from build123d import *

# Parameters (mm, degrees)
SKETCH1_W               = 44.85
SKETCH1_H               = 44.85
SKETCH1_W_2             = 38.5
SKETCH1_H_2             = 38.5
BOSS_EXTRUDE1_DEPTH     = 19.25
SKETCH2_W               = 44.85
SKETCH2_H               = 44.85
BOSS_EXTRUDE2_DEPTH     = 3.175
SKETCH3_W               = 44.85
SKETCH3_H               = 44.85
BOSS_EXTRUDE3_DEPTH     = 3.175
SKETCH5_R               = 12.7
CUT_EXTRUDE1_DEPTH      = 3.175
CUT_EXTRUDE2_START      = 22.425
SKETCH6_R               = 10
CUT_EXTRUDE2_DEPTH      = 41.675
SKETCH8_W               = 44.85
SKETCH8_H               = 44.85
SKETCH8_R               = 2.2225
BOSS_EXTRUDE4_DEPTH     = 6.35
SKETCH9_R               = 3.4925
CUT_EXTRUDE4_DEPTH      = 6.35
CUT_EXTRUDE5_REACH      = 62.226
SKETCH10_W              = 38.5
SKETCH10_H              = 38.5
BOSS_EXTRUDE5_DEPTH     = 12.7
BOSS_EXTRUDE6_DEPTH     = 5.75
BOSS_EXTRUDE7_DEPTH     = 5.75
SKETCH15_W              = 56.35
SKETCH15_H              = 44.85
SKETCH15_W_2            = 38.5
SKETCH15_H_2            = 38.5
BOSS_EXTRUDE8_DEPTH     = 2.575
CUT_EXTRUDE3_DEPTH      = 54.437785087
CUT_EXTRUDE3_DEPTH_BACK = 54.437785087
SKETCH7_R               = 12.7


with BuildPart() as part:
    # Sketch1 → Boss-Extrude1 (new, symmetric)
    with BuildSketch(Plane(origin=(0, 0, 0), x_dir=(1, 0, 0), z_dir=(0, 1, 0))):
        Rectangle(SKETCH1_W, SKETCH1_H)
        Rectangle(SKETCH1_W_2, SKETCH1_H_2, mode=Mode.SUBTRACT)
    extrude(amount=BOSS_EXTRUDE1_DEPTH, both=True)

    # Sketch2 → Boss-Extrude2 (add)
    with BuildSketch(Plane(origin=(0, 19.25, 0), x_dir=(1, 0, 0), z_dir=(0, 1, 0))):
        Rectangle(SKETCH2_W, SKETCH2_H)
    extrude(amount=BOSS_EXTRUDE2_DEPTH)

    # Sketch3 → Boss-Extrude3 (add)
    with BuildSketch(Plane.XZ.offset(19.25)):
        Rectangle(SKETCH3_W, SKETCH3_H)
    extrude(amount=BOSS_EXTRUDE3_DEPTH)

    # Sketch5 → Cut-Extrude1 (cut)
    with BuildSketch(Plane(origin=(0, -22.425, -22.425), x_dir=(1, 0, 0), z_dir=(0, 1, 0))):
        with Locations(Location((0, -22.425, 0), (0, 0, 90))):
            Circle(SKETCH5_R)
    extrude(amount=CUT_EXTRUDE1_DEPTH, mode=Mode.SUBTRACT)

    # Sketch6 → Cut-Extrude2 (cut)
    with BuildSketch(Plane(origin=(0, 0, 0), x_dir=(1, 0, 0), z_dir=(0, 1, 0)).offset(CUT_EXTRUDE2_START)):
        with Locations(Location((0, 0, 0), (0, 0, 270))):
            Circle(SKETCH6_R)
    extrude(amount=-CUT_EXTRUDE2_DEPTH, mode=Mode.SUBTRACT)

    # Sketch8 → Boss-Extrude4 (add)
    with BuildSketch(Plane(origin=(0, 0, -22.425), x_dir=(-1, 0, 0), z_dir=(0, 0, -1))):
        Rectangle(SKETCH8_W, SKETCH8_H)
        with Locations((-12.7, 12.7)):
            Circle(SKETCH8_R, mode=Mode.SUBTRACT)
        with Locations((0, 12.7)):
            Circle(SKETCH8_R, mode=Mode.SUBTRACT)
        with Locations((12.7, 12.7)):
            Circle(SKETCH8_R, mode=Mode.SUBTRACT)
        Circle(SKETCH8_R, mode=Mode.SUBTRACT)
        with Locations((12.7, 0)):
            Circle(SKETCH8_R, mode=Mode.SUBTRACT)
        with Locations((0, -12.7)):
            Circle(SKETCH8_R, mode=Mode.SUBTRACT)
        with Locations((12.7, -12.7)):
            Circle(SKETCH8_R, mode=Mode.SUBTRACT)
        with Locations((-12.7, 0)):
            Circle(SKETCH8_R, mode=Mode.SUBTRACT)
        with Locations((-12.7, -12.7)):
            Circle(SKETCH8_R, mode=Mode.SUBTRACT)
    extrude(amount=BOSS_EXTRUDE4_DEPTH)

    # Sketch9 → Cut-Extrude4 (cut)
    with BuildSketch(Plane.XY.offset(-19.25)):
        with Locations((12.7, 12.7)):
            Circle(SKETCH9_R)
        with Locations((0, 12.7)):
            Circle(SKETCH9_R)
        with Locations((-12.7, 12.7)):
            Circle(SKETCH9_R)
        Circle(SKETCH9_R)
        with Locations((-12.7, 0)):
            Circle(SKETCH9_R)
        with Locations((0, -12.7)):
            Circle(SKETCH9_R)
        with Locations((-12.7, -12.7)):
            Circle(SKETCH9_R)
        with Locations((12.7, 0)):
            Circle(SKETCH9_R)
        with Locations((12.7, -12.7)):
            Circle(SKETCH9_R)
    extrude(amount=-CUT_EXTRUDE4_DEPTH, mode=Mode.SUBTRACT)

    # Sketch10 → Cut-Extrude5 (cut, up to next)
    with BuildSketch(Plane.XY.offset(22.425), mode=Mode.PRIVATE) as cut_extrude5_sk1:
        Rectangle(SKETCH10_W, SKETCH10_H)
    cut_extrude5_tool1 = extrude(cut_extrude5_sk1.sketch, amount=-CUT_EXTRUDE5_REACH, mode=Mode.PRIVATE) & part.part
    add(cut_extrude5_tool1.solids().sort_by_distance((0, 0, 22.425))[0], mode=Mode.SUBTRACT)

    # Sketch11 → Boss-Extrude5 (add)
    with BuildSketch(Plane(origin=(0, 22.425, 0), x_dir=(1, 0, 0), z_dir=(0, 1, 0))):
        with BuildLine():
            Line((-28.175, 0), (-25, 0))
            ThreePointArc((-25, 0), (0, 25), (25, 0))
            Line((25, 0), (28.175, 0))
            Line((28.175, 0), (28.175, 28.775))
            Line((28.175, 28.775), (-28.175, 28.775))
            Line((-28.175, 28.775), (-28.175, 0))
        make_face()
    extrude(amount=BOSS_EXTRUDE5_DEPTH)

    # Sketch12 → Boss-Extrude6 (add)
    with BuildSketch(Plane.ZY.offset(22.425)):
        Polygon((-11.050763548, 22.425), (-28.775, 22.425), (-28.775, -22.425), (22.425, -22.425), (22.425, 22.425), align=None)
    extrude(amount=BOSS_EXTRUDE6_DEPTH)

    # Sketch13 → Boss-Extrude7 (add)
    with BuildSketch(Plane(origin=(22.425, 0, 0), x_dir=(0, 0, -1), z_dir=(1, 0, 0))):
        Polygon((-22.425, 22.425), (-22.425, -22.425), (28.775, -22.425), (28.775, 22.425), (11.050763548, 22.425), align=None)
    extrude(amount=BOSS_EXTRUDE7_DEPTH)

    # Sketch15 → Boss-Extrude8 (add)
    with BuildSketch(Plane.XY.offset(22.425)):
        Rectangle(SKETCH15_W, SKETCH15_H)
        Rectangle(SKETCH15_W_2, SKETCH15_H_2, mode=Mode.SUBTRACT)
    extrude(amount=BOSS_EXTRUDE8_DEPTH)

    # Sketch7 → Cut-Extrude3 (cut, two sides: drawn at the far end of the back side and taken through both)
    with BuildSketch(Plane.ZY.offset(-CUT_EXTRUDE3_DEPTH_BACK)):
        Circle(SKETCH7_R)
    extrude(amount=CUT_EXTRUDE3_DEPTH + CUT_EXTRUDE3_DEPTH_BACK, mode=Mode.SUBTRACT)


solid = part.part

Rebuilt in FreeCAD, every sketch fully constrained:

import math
import FreeCAD as App
import Part
import Sketcher

V = App.Vector
Q = App.Units.Quantity

doc = App.newDocument("Part")
body = doc.addObject("PartDesign::Body", "Body")

sketch1 = doc.addObject("Sketcher::SketchObject", "Sketch")
body.addObject(sketch1)
sketch1.AttachmentSupport = (doc.XZ_Plane, [""])
sketch1.MapMode = "FlatFace"
sketch1.addGeometry([
    Part.LineSegment(V(-22, -22, 0), V(-22, 22, 0)),
    Part.LineSegment(V(-22, 22, 0), V(22, 22, 0)),
    Part.LineSegment(V(22, 22, 0), V(22, -22, 0)),
    Part.LineSegment(V(22, -22, 0), V(-22, -22, 0)),
    Part.LineSegment(V(19, 19, 0), V(-19, 19, 0)),
    Part.LineSegment(V(-19, 19, 0), V(-19, -19, 0)),
    Part.LineSegment(V(-19, -19, 0), V(19, -19, 0)),
    Part.LineSegment(V(19, -19, 0), V(19, 19, 0)),
], False)
sketch1.addConstraint([
    Sketcher.Constraint("Coincident", 0, 2, 1, 1),
    Sketcher.Constraint("Coincident", 1, 2, 2, 1),
    Sketcher.Constraint("Coincident", 2, 2, 3, 1),
    Sketcher.Constraint("Coincident", 3, 2, 0, 1),
    Sketcher.Constraint("Coincident", 4, 2, 5, 1),
    Sketcher.Constraint("Coincident", 5, 2, 6, 1),
    Sketcher.Constraint("Coincident", 6, 2, 7, 1),
    Sketcher.Constraint("Coincident", 7, 2, 4, 1),
    Sketcher.Constraint("Vertical", 0),
    Sketcher.Constraint("Horizontal", 1),
    Sketcher.Constraint("Vertical", 2),
    Sketcher.Constraint("Horizontal", 3),
    Sketcher.Constraint("Horizontal", 4),
    Sketcher.Constraint("Vertical", 5),
    Sketcher.Constraint("Horizontal", 6),
    Sketcher.Constraint("Vertical", 7),
    Sketcher.Constraint("Symmetric", 0, 2, 2, 2, -1, 1),
    Sketcher.Constraint("Symmetric", 4, 2, 6, 2, -1, 1),
    Sketcher.Constraint("Equal", 3, 0),
    Sketcher.Constraint("Equal", 6, 5),
    Sketcher.Constraint("DistanceX", 0, 2, 4, 2, Q("0.125 in")),
    Sketcher.Constraint("DistanceX", 1, 1, 1, 2, 44.85),
])
pad1 = doc.addObject("PartDesign::Pad", "Pad")
body.addObject(pad1)
pad1.Profile = sketch1
pad1.Length = 38.5
pad1.Midplane = True

sketch2 = doc.addObject("Sketcher::SketchObject", "Sketch001")
body.addObject(sketch2)
sketch2.AttachmentSupport = (doc.XZ_Plane, [""])
sketch2.MapMode = "FlatFace"
sketch2.AttachmentOffset = App.Placement(V(0, 0, -19.25), App.Rotation())
sketch2.addGeometry([
    Part.LineSegment(V(-22, -22, 0), V(-22, 22, 0)),
    Part.LineSegment(V(-22, 22, 0), V(22, 22, 0)),
    Part.LineSegment(V(22, 22, 0), V(22, -22, 0)),
    Part.LineSegment(V(22, -22, 0), V(-22, -22, 0)),
], False)
sketch2.addConstraint([
    Sketcher.Constraint("Coincident", 0, 2, 1, 1),
    Sketcher.Constraint("Coincident", 1, 2, 2, 1),
    Sketcher.Constraint("Coincident", 2, 2, 3, 1),
    Sketcher.Constraint("Coincident", 3, 2, 0, 1),
    Sketcher.Constraint("Vertical", 0),
    Sketcher.Constraint("Horizontal", 1),
    Sketcher.Constraint("Vertical", 2),
    Sketcher.Constraint("Horizontal", 3),
    Sketcher.Constraint("Symmetric", 0, 2, 2, 2, -1, 1),
    Sketcher.Constraint("Equal", 3, 0),
    Sketcher.Constraint("DistanceX", 1, 1, 1, 2, 44.85),
])
pad2 = doc.addObject("PartDesign::Pad", "Pad001")
body.addObject(pad2)
pad2.Profile = sketch2
pad2.Length = Q("0.125 in")
pad2.Reversed = True

sketch3 = doc.addObject("Sketcher::SketchObject", "Sketch002")
body.addObject(sketch3)
sketch3.AttachmentSupport = (doc.XZ_Plane, [""])
sketch3.MapMode = "FlatFace"
sketch3.AttachmentOffset = App.Placement(V(0, 0, 19.25), App.Rotation())
sketch3.addGeometry([
    Part.LineSegment(V(-22, 22, 0), V(-22, -22, 0)),
    Part.LineSegment(V(-22, -22, 0), V(22, -22, 0)),
    Part.LineSegment(V(22, -22, 0), V(22, 22, 0)),
    Part.LineSegment(V(22, 22, 0), V(-22, 22, 0)),
], False)
sketch3.addConstraint([
    Sketcher.Constraint("Coincident", 0, 2, 1, 1),
    Sketcher.Constraint("Coincident", 1, 2, 2, 1),
    Sketcher.Constraint("Coincident", 2, 2, 3, 1),
    Sketcher.Constraint("Coincident", 3, 2, 0, 1),
    Sketcher.Constraint("Vertical", 0),
    Sketcher.Constraint("Horizontal", 1),
    Sketcher.Constraint("Vertical", 2),
    Sketcher.Constraint("Horizontal", 3),
    Sketcher.Constraint("Symmetric", 0, 2, 2, 2, -1, 1),
    Sketcher.Constraint("Equal", 3, 0),
    Sketcher.Constraint("DistanceX", 1, 1, 1, 2, 44.85),
])
pad3 = doc.addObject("PartDesign::Pad", "Pad002")
body.addObject(pad3)
pad3.Profile = sketch3
pad3.Length = Q("0.125 in")

sketch4 = doc.addObject("Sketcher::SketchObject", "Sketch003")
body.addObject(sketch4)
sketch4.AttachmentSupport = (doc.XZ_Plane, [""])
sketch4.MapMode = "FlatFace"
sketch4.AttachmentOffset = App.Placement(V(0, 0, 22.425), App.Rotation())
sketch4.addGeometry(Part.Circle(V(0, 0, 0), V(0, 0, 1), 13), False)
sketch4.addConstraint([
    Sketcher.Constraint("Coincident", 0, 3, -1, 1),
    Sketcher.Constraint("Diameter", 0, Q("1 in")),
])
pocket1 = doc.addObject("PartDesign::Pocket", "Pocket")
body.addObject(pocket1)
pocket1.Profile = sketch4
pocket1.Length = Q("0.125 in")

sketch5 = doc.addObject("Sketcher::SketchObject", "Sketch004")
body.addObject(sketch5)
sketch5.AttachmentSupport = (doc.XZ_Plane, [""])
sketch5.MapMode = "FlatFace"
sketch5.AttachmentOffset = App.Placement(V(0, 0, -22.425), App.Rotation())
sketch5.addGeometry(Part.Circle(V(0, 0, 0), V(0, 0, 1), 10), False)
sketch5.addConstraint([
    Sketcher.Constraint("Coincident", 0, 3, -1, 1),
    Sketcher.Constraint("Diameter", 0, 20.0),
])
pocket2 = doc.addObject("PartDesign::Pocket", "Pocket001")
body.addObject(pocket2)
pocket2.Profile = sketch5
pocket2.Length = 41.675
pocket2.Reversed = True

sketch6 = doc.addObject("Sketcher::SketchObject", "Sketch005")
body.addObject(sketch6)
sketch6.AttachmentSupport = (doc.XY_Plane, [""])
sketch6.MapMode = "FlatFace"
sketch6.AttachmentOffset = App.Placement(V(0, 0, -22.425), App.Rotation())
sketch6.addGeometry([
    Part.LineSegment(V(22.4, 22.4, 0), V(22.4, -22.4, 0)),
    Part.LineSegment(V(22.4, -22.4, 0), V(-22.4, -22.4, 0)),
    Part.LineSegment(V(-22.4, -22.4, 0), V(-22.4, 22.4, 0)),
    Part.LineSegment(V(-22.4, 22.4, 0), V(22.4, 22.4, 0)),
    Part.Circle(V(12.7, -12.7, 0), V(0, 0, 1), 2.2),
    Part.Circle(V(0, -12.7, 0), V(0, 0, 1), 2.2),
    Part.Circle(V(-12.7, -12.7, 0), V(0, 0, 1), 2.2),
    Part.Circle(V(12.7, 0, 0), V(0, 0, 1), 2.2),
    Part.Circle(V(12.7, 12.7, 0), V(0, 0, 1), 2.2),
    Part.Circle(V(0, 0, 0), V(0, 0, 1), 2.2),
    Part.Circle(V(-12.7, 0, 0), V(0, 0, 1), 2.2),
    Part.Circle(V(0, 12.7, 0), V(0, 0, 1), 2.2),
    Part.Circle(V(-12.7, 12.7, 0), V(0, 0, 1), 2.2),
], False)
sketch6.addConstraint([
    Sketcher.Constraint("Coincident", 0, 2, 1, 1),
    Sketcher.Constraint("Coincident", 1, 2, 2, 1),
    Sketcher.Constraint("Coincident", 2, 2, 3, 1),
    Sketcher.Constraint("Coincident", 3, 2, 0, 1),
    Sketcher.Constraint("Vertical", 0),
    Sketcher.Constraint("Horizontal", 1),
    Sketcher.Constraint("Vertical", 2),
    Sketcher.Constraint("Horizontal", 3),
    Sketcher.Constraint("Coincident", 9, 3, -1, 1),
    Sketcher.Constraint("Equal", 4, 5),
    Sketcher.Constraint("Equal", 5, 6),
    Sketcher.Constraint("Equal", 6, 7),
    Sketcher.Constraint("Equal", 7, 8),
    Sketcher.Constraint("Equal", 8, 9),
    Sketcher.Constraint("Equal", 9, 10),
    Sketcher.Constraint("Equal", 10, 11),
    Sketcher.Constraint("Equal", 11, 12),
    Sketcher.Constraint("Symmetric", 6, 3, 8, 3, -1, 1),
    Sketcher.Constraint("Symmetric", 7, 3, 10, 3, -1, 1),
    Sketcher.Constraint("Symmetric", 5, 3, 11, 3, -1, 1),
    Sketcher.Constraint("Symmetric", 4, 3, 12, 3, -1, 1),
    Sketcher.Constraint("Symmetric", 0, 2, 2, 2, -1, 1),
    Sketcher.Constraint("Symmetric", 4, 3, 6, 3, -2),
    Sketcher.Constraint("PointOnObject", 5, 3, -2),
    Sketcher.Constraint("PointOnObject", 7, 3, -1),
    Sketcher.Constraint("Horizontal", 4, 3, 5, 3),
    Sketcher.Constraint("Vertical", 4, 3, 7, 3),
    Sketcher.Constraint("Equal", 3, 0),
    Sketcher.Constraint("Diameter", 4, Q("0.175 in")),
    Sketcher.Constraint("DistanceX", 6, 3, 4, 3, Q("1 in")),
    Sketcher.Constraint("DistanceY", 4, 3, 8, 3, Q("1 in")),
    Sketcher.Constraint("DistanceX", 1, 2, 1, 1, 44.85),
])
pad4 = doc.addObject("PartDesign::Pad", "Pad003")
body.addObject(pad4)
pad4.Profile = sketch6
pad4.Length = Q("0.25 in")
pad4.Reversed = True

sketch7 = doc.addObject("Sketcher::SketchObject", "Sketch006")
body.addObject(sketch7)
sketch7.AttachmentSupport = (doc.XY_Plane, [""])
sketch7.MapMode = "FlatFace"
sketch7.AttachmentOffset = App.Placement(V(0, 0, -19.25), App.Rotation())
sketch7.addGeometry([
    Part.Circle(V(12.7, 12.7, 0), V(0, 0, 1), 3.5),
    Part.Circle(V(0, 12.7, 0), V(0, 0, 1), 3.5),
    Part.Circle(V(-12.7, 12.7, 0), V(0, 0, 1), 3.5),
    Part.Circle(V(0, 0, 0), V(0, 0, 1), 3.5),
    Part.Circle(V(-12.7, 0, 0), V(0, 0, 1), 3.5),
    Part.Circle(V(0, -12.7, 0), V(0, 0, 1), 3.5),
    Part.Circle(V(-12.7, -12.7, 0), V(0, 0, 1), 3.5),
    Part.Circle(V(12.7, 0, 0), V(0, 0, 1), 3.5),
    Part.Circle(V(12.7, -12.7, 0), V(0, 0, 1), 3.5),
], False)
sketch7.addConstraint([
    Sketcher.Constraint("Coincident", 3, 3, -1, 1),
    Sketcher.Constraint("Equal", 0, 1),
    Sketcher.Constraint("Equal", 1, 2),
    Sketcher.Constraint("Equal", 2, 3),
    Sketcher.Constraint("Equal", 3, 4),
    Sketcher.Constraint("Equal", 4, 5),
    Sketcher.Constraint("Equal", 5, 6),
    Sketcher.Constraint("Equal", 6, 7),
    Sketcher.Constraint("Equal", 7, 8),
    Sketcher.Constraint("Symmetric", 1, 3, 5, 3, -1, 1),
    Sketcher.Constraint("Symmetric", 0, 3, 6, 3, -1, 1),
    Sketcher.Constraint("Symmetric", 4, 3, 7, 3, -1, 1),
    Sketcher.Constraint("Symmetric", 2, 3, 8, 3, -1, 1),
    Sketcher.Constraint("Symmetric", 0, 3, 2, 3, -2),
    Sketcher.Constraint("PointOnObject", 1, 3, -2),
    Sketcher.Constraint("PointOnObject", 4, 3, -1),
    Sketcher.Constraint("Horizontal", 0, 3, 1, 3),
    Sketcher.Constraint("Vertical", 2, 3, 4, 3),
    Sketcher.Constraint("Diameter", 0, Q("0.275 in")),
    Sketcher.Constraint("DistanceX", 2, 3, 0, 3, Q("1 in")),
    Sketcher.Constraint("DistanceY", 5, 3, 1, 3, Q("1 in")),
])
pocket3 = doc.addObject("PartDesign::Pocket", "Pocket002")
body.addObject(pocket3)
pocket3.Profile = sketch7
pocket3.Length = Q("0.25 in")

sketch8 = doc.addObject("Sketcher::SketchObject", "Sketch007")
body.addObject(sketch8)
sketch8.AttachmentSupport = (doc.XY_Plane, [""])
sketch8.MapMode = "FlatFace"
sketch8.AttachmentOffset = App.Placement(V(0, 0, 22.425), App.Rotation())
sketch8.addGeometry([
    Part.LineSegment(V(-19, 19, 0), V(-19, -19, 0)),
    Part.LineSegment(V(-19, -19, 0), V(19, -19, 0)),
    Part.LineSegment(V(19, -19, 0), V(19, 19, 0)),
    Part.LineSegment(V(19, 19, 0), V(-19, 19, 0)),
], False)
sketch8.addConstraint([
    Sketcher.Constraint("Coincident", 0, 2, 1, 1),
    Sketcher.Constraint("Coincident", 1, 2, 2, 1),
    Sketcher.Constraint("Coincident", 2, 2, 3, 1),
    Sketcher.Constraint("Coincident", 3, 2, 0, 1),
    Sketcher.Constraint("Vertical", 0),
    Sketcher.Constraint("Horizontal", 1),
    Sketcher.Constraint("Vertical", 2),
    Sketcher.Constraint("Horizontal", 3),
    Sketcher.Constraint("Symmetric", 0, 2, 2, 2, -1, 1),
    Sketcher.Constraint("Equal", 3, 0),
    Sketcher.Constraint("DistanceX", 1, 1, 1, 2, 38.5),
])
pocket4 = doc.addObject("PartDesign::Pocket", "Pocket003")
body.addObject(pocket4)
pocket4.Profile = sketch8
pocket4.Type = "UpToFirst"

sketch9 = doc.addObject("Sketcher::SketchObject", "Sketch008")
body.addObject(sketch9)
sketch9.AttachmentSupport = (doc.XZ_Plane, [""])
sketch9.MapMode = "FlatFace"
sketch9.AttachmentOffset = App.Placement(V(0, 0, -22.425), App.Rotation())
sketch9.addGeometry([
    Part.LineSegment(V(-28.2, 0, 0), V(-25, 0, 0)),
    Part.ArcOfCircle(Part.Circle(V(0, 0, 0), V(0, 0, 1), 25), math.radians(180), math.radians(360)),
    Part.LineSegment(V(25, 0, 0), V(28.2, 0, 0)),
    Part.LineSegment(V(28.2, 0, 0), V(28.2, -28.8, 0)),
    Part.LineSegment(V(28.2, -28.8, 0), V(-28.2, -28.8, 0)),
    Part.LineSegment(V(-28.2, -28.8, 0), V(-28.2, 0, 0)),
], False)
sketch9.addConstraint([
    Sketcher.Constraint("Coincident", 0, 2, 1, 1),
    Sketcher.Constraint("Coincident", 1, 2, 2, 1),
    Sketcher.Constraint("Coincident", 2, 2, 3, 1),
    Sketcher.Constraint("Coincident", 3, 2, 4, 1),
    Sketcher.Constraint("Coincident", 4, 2, 5, 1),
    Sketcher.Constraint("Coincident", 5, 2, 0, 1),
    Sketcher.Constraint("Horizontal", 0),
    Sketcher.Constraint("Horizontal", 2),
    Sketcher.Constraint("Vertical", 3),
    Sketcher.Constraint("Horizontal", 4),
    Sketcher.Constraint("Vertical", 5),
    Sketcher.Constraint("Coincident", 1, 3, -1, 1),
    Sketcher.Constraint("Symmetric", 2, 2, 5, 2, -1, 1),
    Sketcher.Constraint("PointOnObject", 0, 2, -1),
    Sketcher.Constraint("DistanceX", 0, 1, 0, 2, Q("0.125 in")),
    Sketcher.Constraint("Radius", 1, 25.0),
    Sketcher.Constraint("DistanceY", 3, 2, 3, 1, 28.775),
])
pad5 = doc.addObject("PartDesign::Pad", "Pad004")
body.addObject(pad5)
pad5.Profile = sketch9
pad5.Length = Q("0.5 in")
pad5.Reversed = True

sketch10 = doc.addObject("Sketcher::SketchObject", "Sketch009")
body.addObject(sketch10)
sketch10.AttachmentSupport = (doc.YZ_Plane, [""])
sketch10.MapMode = "FlatFace"
sketch10.AttachmentOffset = App.Placement(V(0, 0, -22.425), App.Rotation())
sketch10.addGeometry([
    Part.LineSegment(V(22, -29, 0), V(-22, -29, 0)),
    Part.LineSegment(V(-22, -29, 0), V(-22, 22, 0)),
    Part.LineSegment(V(-22, 22, 0), V(22, 22, 0)),
    Part.LineSegment(V(22, 22, 0), V(22, -29, 0)),
], False)
sketch10.addConstraint([
    Sketcher.Constraint("Coincident", 0, 2, 1, 1),
    Sketcher.Constraint("Coincident", 1, 2, 2, 1),
    Sketcher.Constraint("Coincident", 2, 2, 3, 1),
    Sketcher.Constraint("Coincident", 3, 2, 0, 1),
    Sketcher.Constraint("Horizontal", 0),
    Sketcher.Constraint("Vertical", 1),
    Sketcher.Constraint("Horizontal", 2),
    Sketcher.Constraint("Vertical", 3),
    Sketcher.Constraint("DistanceX", 0, 2, 0, 1, 44.85),
    Sketcher.Constraint("DistanceY", 1, 1, 1, 2, 51.2),
    Sketcher.Constraint("DistanceX", 0, 2, -1, 1, 22.425),
    Sketcher.Constraint("DistanceY", 0, 2, -1, 1, 28.775),
])
pad6 = doc.addObject("PartDesign::Pad", "Pad005")
body.addObject(pad6)
pad6.Profile = sketch10
pad6.Length = 5.75
pad6.Reversed = True

sketch11 = doc.addObject("Sketcher::SketchObject", "Sketch010")
body.addObject(sketch11)
sketch11.AttachmentSupport = (doc.YZ_Plane, [""])
sketch11.MapMode = "FlatFace"
sketch11.AttachmentOffset = App.Placement(V(0, 0, 22.425), App.Rotation())
sketch11.addGeometry([
    Part.LineSegment(V(22, 22, 0), V(-22, 22, 0)),
    Part.LineSegment(V(-22, 22, 0), V(-22, -29, 0)),
    Part.LineSegment(V(-22, -29, 0), V(22, -29, 0)),
    Part.LineSegment(V(22, -29, 0), V(22, 22, 0)),
], False)
sketch11.addConstraint([
    Sketcher.Constraint("Coincident", 0, 2, 1, 1),
    Sketcher.Constraint("Coincident", 1, 2, 2, 1),
    Sketcher.Constraint("Coincident", 2, 2, 3, 1),
    Sketcher.Constraint("Coincident", 3, 2, 0, 1),
    Sketcher.Constraint("Horizontal", 0),
    Sketcher.Constraint("Vertical", 1),
    Sketcher.Constraint("Horizontal", 2),
    Sketcher.Constraint("Vertical", 3),
    Sketcher.Constraint("DistanceX", 0, 2, 0, 1, 44.85),
    Sketcher.Constraint("DistanceY", 1, 2, 1, 1, 51.2),
    Sketcher.Constraint("DistanceX", 0, 2, -1, 1, 22.425),
    Sketcher.Constraint("DistanceY", -1, 1, 0, 2, 22.425),
])
pad7 = doc.addObject("PartDesign::Pad", "Pad006")
body.addObject(pad7)
pad7.Profile = sketch11
pad7.Length = 5.75

sketch12 = doc.addObject("Sketcher::SketchObject", "Sketch011")
body.addObject(sketch12)
sketch12.AttachmentSupport = (doc.XY_Plane, [""])
sketch12.MapMode = "FlatFace"
sketch12.AttachmentOffset = App.Placement(V(0, 0, 22.425), App.Rotation())
sketch12.addGeometry([
    Part.LineSegment(V(-28, 22, 0), V(-28, -22, 0)),
    Part.LineSegment(V(-28, -22, 0), V(28, -22, 0)),
    Part.LineSegment(V(28, -22, 0), V(28, 22, 0)),
    Part.LineSegment(V(28, 22, 0), V(-28, 22, 0)),
    Part.LineSegment(V(19, -19, 0), V(-19, -19, 0)),
    Part.LineSegment(V(-19, -19, 0), V(-19, 19, 0)),
    Part.LineSegment(V(-19, 19, 0), V(19, 19, 0)),
    Part.LineSegment(V(19, 19, 0), V(19, -19, 0)),
], False)
sketch12.addConstraint([
    Sketcher.Constraint("Coincident", 0, 2, 1, 1),
    Sketcher.Constraint("Coincident", 1, 2, 2, 1),
    Sketcher.Constraint("Coincident", 2, 2, 3, 1),
    Sketcher.Constraint("Coincident", 3, 2, 0, 1),
    Sketcher.Constraint("Coincident", 4, 2, 5, 1),
    Sketcher.Constraint("Coincident", 5, 2, 6, 1),
    Sketcher.Constraint("Coincident", 6, 2, 7, 1),
    Sketcher.Constraint("Coincident", 7, 2, 4, 1),
    Sketcher.Constraint("Vertical", 0),
    Sketcher.Constraint("Horizontal", 1),
    Sketcher.Constraint("Vertical", 2),
    Sketcher.Constraint("Horizontal", 3),
    Sketcher.Constraint("Horizontal", 4),
    Sketcher.Constraint("Vertical", 5),
    Sketcher.Constraint("Horizontal", 6),
    Sketcher.Constraint("Vertical", 7),
    Sketcher.Constraint("Symmetric", 0, 2, 2, 2, -1, 1),
    Sketcher.Constraint("Symmetric", 4, 2, 6, 2, -1, 1),
    Sketcher.Constraint("Equal", 6, 5),
    Sketcher.Constraint("DistanceY", 0, 2, 4, 2, Q("0.125 in")),
    Sketcher.Constraint("DistanceX", 1, 1, 1, 2, 56.35),
    Sketcher.Constraint("DistanceX", 4, 2, 4, 1, 38.5),
])
pad8 = doc.addObject("PartDesign::Pad", "Pad007")
body.addObject(pad8)
pad8.Profile = sketch12
pad8.Length = 2.575

sketch13 = doc.addObject("Sketcher::SketchObject", "Sketch012")
body.addObject(sketch13)
sketch13.AttachmentSupport = (doc.YZ_Plane, [""])
sketch13.MapMode = "FlatFace"
sketch13.addGeometry(Part.Circle(V(0, 0, 0), V(0, 0, 1), 13), False)
sketch13.addConstraint([
    Sketcher.Constraint("Coincident", 0, 3, -1, 1),
    Sketcher.Constraint("Diameter", 0, Q("1 in")),
])
pocket5 = doc.addObject("PartDesign::Pocket", "Pocket004")
body.addObject(pocket5)
pocket5.Profile = sketch13
pocket5.Type = "ThroughAll"
pocket5.Midplane = True

doc.recompute()
